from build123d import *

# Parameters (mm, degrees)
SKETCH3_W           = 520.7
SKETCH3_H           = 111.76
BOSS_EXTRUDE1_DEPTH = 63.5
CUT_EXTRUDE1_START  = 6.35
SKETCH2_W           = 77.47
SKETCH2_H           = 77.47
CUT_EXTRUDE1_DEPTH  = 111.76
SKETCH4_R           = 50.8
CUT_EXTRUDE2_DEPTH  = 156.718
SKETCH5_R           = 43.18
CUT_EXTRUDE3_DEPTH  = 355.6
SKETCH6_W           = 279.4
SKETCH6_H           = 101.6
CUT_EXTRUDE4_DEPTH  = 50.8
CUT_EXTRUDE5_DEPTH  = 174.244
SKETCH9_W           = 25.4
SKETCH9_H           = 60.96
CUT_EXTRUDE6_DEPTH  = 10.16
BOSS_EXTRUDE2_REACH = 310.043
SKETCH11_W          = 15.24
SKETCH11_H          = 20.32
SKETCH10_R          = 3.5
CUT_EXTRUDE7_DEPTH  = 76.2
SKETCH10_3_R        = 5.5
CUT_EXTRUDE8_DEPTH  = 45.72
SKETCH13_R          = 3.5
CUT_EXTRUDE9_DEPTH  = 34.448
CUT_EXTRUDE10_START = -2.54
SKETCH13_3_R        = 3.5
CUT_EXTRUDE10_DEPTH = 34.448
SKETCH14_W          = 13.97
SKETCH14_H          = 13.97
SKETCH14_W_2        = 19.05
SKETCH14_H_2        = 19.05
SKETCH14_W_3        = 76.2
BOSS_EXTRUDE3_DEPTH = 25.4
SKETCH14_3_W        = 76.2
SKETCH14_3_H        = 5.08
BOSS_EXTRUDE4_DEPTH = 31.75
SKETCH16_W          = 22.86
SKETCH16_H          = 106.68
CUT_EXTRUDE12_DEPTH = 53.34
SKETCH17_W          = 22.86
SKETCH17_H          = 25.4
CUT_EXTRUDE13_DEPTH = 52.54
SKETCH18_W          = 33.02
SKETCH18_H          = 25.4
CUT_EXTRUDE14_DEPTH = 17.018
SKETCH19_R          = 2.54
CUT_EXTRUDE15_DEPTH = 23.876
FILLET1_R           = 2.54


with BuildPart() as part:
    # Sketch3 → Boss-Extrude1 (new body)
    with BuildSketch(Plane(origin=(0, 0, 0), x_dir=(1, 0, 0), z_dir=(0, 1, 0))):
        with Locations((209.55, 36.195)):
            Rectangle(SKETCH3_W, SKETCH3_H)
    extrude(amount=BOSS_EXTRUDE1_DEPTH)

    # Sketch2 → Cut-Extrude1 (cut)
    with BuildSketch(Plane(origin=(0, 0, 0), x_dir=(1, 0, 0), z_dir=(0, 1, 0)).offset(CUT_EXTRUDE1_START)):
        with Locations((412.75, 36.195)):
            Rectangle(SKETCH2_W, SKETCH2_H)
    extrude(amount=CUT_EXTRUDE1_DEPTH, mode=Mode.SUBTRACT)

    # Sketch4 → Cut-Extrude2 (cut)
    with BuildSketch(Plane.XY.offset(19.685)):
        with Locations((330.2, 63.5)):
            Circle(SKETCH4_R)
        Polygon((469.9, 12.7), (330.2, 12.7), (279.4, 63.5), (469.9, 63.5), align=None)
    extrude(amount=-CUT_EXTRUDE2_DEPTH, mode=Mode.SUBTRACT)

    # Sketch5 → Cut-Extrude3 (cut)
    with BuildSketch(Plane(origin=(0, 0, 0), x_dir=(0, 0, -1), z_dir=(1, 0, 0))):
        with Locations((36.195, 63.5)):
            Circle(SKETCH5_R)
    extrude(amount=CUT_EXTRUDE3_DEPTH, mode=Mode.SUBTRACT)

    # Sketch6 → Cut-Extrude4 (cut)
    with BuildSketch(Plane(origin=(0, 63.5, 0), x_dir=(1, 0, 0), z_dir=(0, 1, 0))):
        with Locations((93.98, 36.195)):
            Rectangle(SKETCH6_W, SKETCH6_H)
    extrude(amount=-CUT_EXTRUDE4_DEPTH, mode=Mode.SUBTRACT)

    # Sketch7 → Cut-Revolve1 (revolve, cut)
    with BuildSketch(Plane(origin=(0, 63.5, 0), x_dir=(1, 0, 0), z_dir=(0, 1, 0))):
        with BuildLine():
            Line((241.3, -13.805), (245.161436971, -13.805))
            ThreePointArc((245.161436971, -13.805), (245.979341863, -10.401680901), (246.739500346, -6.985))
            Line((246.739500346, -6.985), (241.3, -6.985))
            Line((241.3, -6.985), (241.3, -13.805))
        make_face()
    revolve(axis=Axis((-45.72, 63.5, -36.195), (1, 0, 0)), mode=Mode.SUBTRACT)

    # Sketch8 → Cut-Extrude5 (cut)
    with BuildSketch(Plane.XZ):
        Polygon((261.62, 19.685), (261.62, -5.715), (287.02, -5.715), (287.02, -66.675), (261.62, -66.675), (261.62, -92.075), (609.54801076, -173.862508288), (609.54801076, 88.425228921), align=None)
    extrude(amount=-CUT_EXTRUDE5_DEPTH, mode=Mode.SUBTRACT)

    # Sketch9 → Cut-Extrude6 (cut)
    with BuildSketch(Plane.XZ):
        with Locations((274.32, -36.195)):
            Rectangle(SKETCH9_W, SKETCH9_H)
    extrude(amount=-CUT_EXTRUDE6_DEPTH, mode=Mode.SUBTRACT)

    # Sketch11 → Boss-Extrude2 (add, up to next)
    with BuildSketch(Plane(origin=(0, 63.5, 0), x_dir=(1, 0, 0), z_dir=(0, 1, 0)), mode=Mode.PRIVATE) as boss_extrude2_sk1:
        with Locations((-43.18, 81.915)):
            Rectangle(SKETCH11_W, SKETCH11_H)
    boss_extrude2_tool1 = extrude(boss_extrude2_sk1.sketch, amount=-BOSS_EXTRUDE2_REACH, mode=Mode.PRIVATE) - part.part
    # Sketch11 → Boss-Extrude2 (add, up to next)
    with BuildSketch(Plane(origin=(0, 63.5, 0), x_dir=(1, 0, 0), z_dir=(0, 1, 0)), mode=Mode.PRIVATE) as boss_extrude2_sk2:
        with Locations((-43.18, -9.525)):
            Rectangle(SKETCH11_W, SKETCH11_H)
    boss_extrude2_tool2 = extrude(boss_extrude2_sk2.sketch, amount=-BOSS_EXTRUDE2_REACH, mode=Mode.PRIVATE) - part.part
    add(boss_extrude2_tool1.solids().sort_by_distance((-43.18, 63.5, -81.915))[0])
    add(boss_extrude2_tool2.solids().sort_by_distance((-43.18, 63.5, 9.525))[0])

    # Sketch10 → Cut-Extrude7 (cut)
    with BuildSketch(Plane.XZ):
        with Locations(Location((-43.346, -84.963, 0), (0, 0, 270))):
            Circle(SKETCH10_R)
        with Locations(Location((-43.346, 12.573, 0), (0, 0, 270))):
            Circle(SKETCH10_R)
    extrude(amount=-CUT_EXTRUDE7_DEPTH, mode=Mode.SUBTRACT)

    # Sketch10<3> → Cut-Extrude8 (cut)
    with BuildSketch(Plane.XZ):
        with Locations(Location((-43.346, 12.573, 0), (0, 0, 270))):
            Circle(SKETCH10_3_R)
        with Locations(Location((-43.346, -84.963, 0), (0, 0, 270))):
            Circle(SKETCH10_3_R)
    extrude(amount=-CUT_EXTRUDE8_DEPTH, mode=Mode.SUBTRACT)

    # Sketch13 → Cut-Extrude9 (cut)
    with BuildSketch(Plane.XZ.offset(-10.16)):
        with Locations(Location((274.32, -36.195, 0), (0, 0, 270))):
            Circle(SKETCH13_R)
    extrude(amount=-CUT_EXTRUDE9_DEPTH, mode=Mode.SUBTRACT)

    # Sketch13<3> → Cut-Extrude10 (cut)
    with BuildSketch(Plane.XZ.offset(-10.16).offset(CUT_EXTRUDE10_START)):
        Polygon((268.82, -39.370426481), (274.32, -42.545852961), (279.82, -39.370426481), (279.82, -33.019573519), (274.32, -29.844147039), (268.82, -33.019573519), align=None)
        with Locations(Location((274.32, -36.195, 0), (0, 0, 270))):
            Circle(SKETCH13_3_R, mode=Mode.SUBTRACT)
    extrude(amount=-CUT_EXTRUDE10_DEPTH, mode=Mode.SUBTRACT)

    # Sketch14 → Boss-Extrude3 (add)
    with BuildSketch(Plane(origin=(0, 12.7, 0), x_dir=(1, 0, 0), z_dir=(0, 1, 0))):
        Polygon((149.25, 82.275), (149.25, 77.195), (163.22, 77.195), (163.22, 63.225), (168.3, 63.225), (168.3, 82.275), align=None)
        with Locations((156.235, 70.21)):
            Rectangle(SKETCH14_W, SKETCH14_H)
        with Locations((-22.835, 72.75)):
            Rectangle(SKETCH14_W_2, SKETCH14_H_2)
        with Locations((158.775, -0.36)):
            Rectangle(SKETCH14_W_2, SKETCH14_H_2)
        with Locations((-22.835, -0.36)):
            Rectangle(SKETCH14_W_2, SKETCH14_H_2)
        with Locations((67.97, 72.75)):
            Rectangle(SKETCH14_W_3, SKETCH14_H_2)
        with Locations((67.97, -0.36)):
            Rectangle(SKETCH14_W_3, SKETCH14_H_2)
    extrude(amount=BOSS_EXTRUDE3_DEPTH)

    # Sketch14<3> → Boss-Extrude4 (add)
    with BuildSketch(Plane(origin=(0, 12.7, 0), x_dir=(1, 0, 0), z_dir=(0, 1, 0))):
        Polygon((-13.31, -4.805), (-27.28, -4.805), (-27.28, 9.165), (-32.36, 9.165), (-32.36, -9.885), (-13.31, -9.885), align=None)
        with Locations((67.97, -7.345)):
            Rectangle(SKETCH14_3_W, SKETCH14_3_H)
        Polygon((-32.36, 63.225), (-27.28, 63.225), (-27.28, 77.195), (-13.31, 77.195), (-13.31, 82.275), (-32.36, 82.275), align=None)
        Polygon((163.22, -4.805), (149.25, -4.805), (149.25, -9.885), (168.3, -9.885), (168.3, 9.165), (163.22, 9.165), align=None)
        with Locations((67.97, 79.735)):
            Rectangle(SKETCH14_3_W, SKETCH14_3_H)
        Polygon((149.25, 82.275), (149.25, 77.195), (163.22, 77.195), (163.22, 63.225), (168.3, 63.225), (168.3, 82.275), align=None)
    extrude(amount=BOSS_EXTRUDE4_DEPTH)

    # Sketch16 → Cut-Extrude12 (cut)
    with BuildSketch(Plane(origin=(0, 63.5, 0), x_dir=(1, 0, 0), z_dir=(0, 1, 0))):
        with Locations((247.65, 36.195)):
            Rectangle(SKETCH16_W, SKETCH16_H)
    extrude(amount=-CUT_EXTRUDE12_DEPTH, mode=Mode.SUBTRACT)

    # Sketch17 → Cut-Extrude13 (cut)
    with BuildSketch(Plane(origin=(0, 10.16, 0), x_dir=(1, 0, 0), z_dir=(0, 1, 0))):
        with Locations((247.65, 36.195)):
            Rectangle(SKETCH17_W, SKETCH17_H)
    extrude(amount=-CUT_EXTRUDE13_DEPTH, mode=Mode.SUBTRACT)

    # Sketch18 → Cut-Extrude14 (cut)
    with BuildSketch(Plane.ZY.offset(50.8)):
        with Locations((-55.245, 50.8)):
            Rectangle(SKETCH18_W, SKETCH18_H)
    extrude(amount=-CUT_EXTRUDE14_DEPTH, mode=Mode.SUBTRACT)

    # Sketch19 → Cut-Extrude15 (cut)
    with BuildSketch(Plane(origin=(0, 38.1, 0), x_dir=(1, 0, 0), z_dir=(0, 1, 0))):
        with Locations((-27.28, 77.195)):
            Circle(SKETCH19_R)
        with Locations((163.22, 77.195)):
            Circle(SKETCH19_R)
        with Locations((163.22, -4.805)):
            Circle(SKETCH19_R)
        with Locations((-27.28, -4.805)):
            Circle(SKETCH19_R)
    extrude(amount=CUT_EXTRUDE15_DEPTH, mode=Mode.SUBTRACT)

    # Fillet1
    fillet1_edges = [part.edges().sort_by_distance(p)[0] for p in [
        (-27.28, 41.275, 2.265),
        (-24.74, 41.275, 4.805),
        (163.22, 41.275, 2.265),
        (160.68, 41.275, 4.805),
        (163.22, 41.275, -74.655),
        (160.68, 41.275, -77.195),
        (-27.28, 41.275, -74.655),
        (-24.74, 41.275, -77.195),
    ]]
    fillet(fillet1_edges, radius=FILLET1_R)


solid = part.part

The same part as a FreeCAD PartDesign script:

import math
import FreeCAD as App
import Part
import Sketcher
from FreeCAD import Vector
Q = App.Units.Quantity


def edges_at(feature, points):
    """Names of the edges that pass closest to the given points."""
    edges = feature.Shape.Edges
    near = lambda p: min(range(len(edges)), key=lambda i: edges[i].distToShape(Part.Vertex(*p))[0])
    return sorted({f"Edge{near(p) + 1}" for p in points})


def add_polygon(sketch, points):
    """Adds a closed chain of lines whose ends are joined by coincident constraints."""
    first, n = sketch.GeometryCount, len(points)
    for a, b in zip(points, points[1:] + points[:1]):
        sketch.addGeometry(Part.LineSegment(App.Vector(*a, 0), App.Vector(*b, 0)), False)
    for i in range(n):
        sketch.addConstraint(Sketcher.Constraint("Coincident", first + i, 2, first + (i + 1) % n, 1))

doc = App.newDocument("Part")
body = doc.addObject("PartDesign::Body", "Body")

sketch1 = doc.addObject("Sketcher::SketchObject", "Sketch")
body.addObject(sketch1)
sketch1.AttachmentSupport = (doc.XZ_Plane, [""])
sketch1.MapMode = "FlatFace"
add_polygon(sketch1, [(-51, -92), (-51, 20), (470, 20), (470, -92)])
sketch1.addConstraint(Sketcher.Constraint("Vertical", 0))
sketch1.addConstraint(Sketcher.Constraint("Horizontal", 1))
sketch1.addConstraint(Sketcher.Constraint("Vertical", 2))
sketch1.addConstraint(Sketcher.Constraint("Horizontal", 3))
sketch1.addConstraint(Sketcher.Constraint("DistanceX", 1, 1, 1, 2, Q("20.5 in")))
sketch1.addConstraint(Sketcher.Constraint("DistanceY", 0, 1, 0, 2, Q("4.4 in")))
sketch1.addConstraint(Sketcher.Constraint("DistanceX", 0, 2, -1, 1, Q("2 in")))
sketch1.addConstraint(Sketcher.Constraint("DistanceY", -1, 1, 0, 2, Q("0.775 in")))
pad1 = doc.addObject("PartDesign::Pad", "Pad")
body.addObject(pad1)
pad1.Profile = sketch1
pad1.Length = Q("2.5 in")
pad1.Reversed = True

sketch2 = doc.addObject("Sketcher::SketchObject", "Sketch001")
body.addObject(sketch2)
sketch2.AttachmentSupport = (doc.XZ_Plane, [""])
sketch2.MapMode = "FlatFace"
sketch2.AttachmentOffset = App.Placement(Vector(0, 0, -0.25 * 25.4), App.Rotation())
add_polygon(sketch2, [(374, -75), (374, 3), (451, 3), (451, -75)])
sketch2.addConstraint(Sketcher.Constraint("Vertical", 0))
sketch2.addConstraint(Sketcher.Constraint("Horizontal", 1))
sketch2.addConstraint(Sketcher.Constraint("Vertical", 2))
sketch2.addConstraint(Sketcher.Constraint("Horizontal", 3))
sketch2.addConstraint(Sketcher.Constraint("Equal", 3, 0))
sketch2.addConstraint(Sketcher.Constraint("DistanceX", 1, 1, 1, 2, Q("3.05 in")))
sketch2.addConstraint(Sketcher.Constraint("DistanceY", -1, 1, 0, 2, Q("0.1 in")))
sketch2.addConstraint(Sketcher.Constraint("DistanceX", -1, 1, 0, 2, Q("14.725 in")))
pocket1 = doc.addObject("PartDesign::Pocket", "Pocket")
body.addObject(pocket1)
pocket1.Profile = sketch2
pocket1.Length = Q("4.4 in")

sketch3 = doc.addObject("Sketcher::SketchObject", "Sketch002")
body.addObject(sketch3)
sketch3.AttachmentSupport = (doc.XY_Plane, [""])
sketch3.MapMode = "FlatFace"
sketch3.AttachmentOffset = App.Placement(Vector(0, 0, 0.775 * 25.4), App.Rotation())
sketch3.addGeometry(Part.ArcOfCircle(Part.Circle(Vector(330, 64, 0), Vector(0, 0, 1), 51), math.radians(0), math.radians(270)), False)
sketch3.addGeometry(Part.LineSegment(Vector(330, 13, 0), Vector(470, 13, 0)), False)
sketch3.addGeometry(Part.LineSegment(Vector(470, 13, 0), Vector(470, 64, 0)), False)
sketch3.addGeometry(Part.LineSegment(Vector(470, 64, 0), Vector(381, 64, 0)), False)
sketch3.addConstraint(Sketcher.Constraint("Tangent", 0, 2, 1, 1))
sketch3.addConstraint(Sketcher.Constraint("Coincident", 1, 2, 2, 1))
sketch3.addConstraint(Sketcher.Constraint("Coincident", 2, 2, 3, 1))
sketch3.addConstraint(Sketcher.Constraint("Coincident", 3, 2, 0, 1))
sketch3.addConstraint(Sketcher.Constraint("Horizontal", 1))
sketch3.addConstraint(Sketcher.Constraint("Vertical", 2))
sketch3.addConstraint(Sketcher.Constraint("Horizontal", 3))
sketch3.addConstraint(Sketcher.Constraint("Horizontal", 0, 3, 2, 2))
sketch3.addConstraint(Sketcher.Constraint("Radius", 0, Q("2 in")))
sketch3.addConstraint(Sketcher.Constraint("DistanceX", 1, 1, 1, 2, Q("5.5 in")))
sketch3.addConstraint(Sketcher.Constraint("DistanceX", -1, 1, 0, 3, Q("13 in")))
sketch3.addConstraint(Sketcher.Constraint("DistanceY", -1, 1, 0, 3, Q("2.5 in")))
pocket2 = doc.addObject("PartDesign::Pocket", "Pocket001")
body.addObject(pocket2)
pocket2.Profile = sketch3
pocket2.Length = Q("6.17 in")

sketch4 = doc.addObject("Sketcher::SketchObject", "Sketch003")
body.addObject(sketch4)
sketch4.AttachmentSupport = (doc.YZ_Plane, [""])
sketch4.MapMode = "FlatFace"
sketch4.addGeometry(Part.Circle(Vector(64, -36, 0), Vector(0, 0, 1), 43), False)
sketch4.addConstraint(Sketcher.Constraint("Diameter", 0, Q("3.4 in")))
sketch4.addConstraint(Sketcher.Constraint("DistanceX", -1, 1, 0, 3, Q("2.5 in")))
sketch4.addConstraint(Sketcher.Constraint("DistanceY", 0, 3, -1, 1, Q("1.425 in")))
pocket3 = doc.addObject("PartDesign::Pocket", "Pocket002")
body.addObject(pocket3)
pocket3.Profile = sketch4
pocket3.Length = Q("14 in")
pocket3.Reversed = True

sketch5 = doc.addObject("Sketcher::SketchObject", "Sketch004")
body.addObject(sketch5)
sketch5.AttachmentSupport = (doc.XZ_Plane, [""])
sketch5.MapMode = "FlatFace"
sketch5.AttachmentOffset = App.Placement(Vector(0, 0, -2.5 * 25.4), App.Rotation())
add_polygon(sketch5, [(-46, -87), (-46, 15), (234, 15), (234, -87)])
sketch5.addConstraint(Sketcher.Constraint("Vertical", 0))
sketch5.addConstraint(Sketcher.Constraint("Horizontal", 1))
sketch5.addConstraint(Sketcher.Constraint("Vertical", 2))
sketch5.addConstraint(Sketcher.Constraint("Horizontal", 3))
sketch5.addConstraint(Sketcher.Constraint("DistanceX", 1, 1, 1, 2, Q("11 in")))
sketch5.addConstraint(Sketcher.Constraint("DistanceY", 0, 1, 0, 2, Q("4 in")))
sketch5.addConstraint(Sketcher.Constraint("DistanceX", 0, 2, -1, 1, Q("1.8 in")))
sketch5.addConstraint(Sketcher.Constraint("DistanceY", -1, 1, 0, 2, Q("0.575 in")))
pocket4 = doc.addObject("PartDesign::Pocket", "Pocket003")
body.addObject(pocket4)
pocket4.Profile = sketch5
pocket4.Length = Q("2 in")
pocket4.Reversed = True

sketch6 = doc.addObject("Sketcher::SketchObject", "Sketch005")
body.addObject(sketch6)
sketch6.AttachmentSupport = (doc.XZ_Plane, [""])
sketch6.MapMode = "FlatFace"
sketch6.AttachmentOffset = App.Placement(Vector(0, 0, -2.5 * 25.4), App.Rotation())
sketch6.addGeometry(Part.LineSegment(Vector(241.3, 13.8, 0), Vector(245.2, 13.8, 0)), False)
sketch6.addGeometry(Part.ArcOfCircle(Part.Circle(Vector(44.6, -36.2, 0), Vector(0, 0, 1), 206.7), math.radians(12.06), math.radians(14)), False)
sketch6.addGeometry(Part.LineSegment(Vector(246.7, 7, 0), Vector(241.3, 7, 0)), False)
sketch6.addGeometry(Part.LineSegment(Vector(241.3, 7, 0), Vector(241.3, 13.8, 0)), False)
sketch6.addGeometry(Part.LineSegment(Vector(44.6, -36.2, 0), Vector(246.7, -36.2, 0)), True)
sketch6.addConstraint(Sketcher.Constraint("Coincident", 0, 2, 1, 2))
sketch6.addConstraint(Sketcher.Constraint("Coincident", 1, 1, 2, 1))
sketch6.addConstraint(Sketcher.Constraint("Coincident", 2, 2, 3, 1))
sketch6.addConstraint(Sketcher.Constraint("Coincident", 3, 2, 0, 1))
sketch6.addConstraint(Sketcher.Constraint("Horizontal", 0))
sketch6.addConstraint(Sketcher.Constraint("Horizontal", 2))
sketch6.addConstraint(Sketcher.Constraint("Vertical", 3))
sketch6.addConstraint(Sketcher.Constraint("Horizontal", 4))
sketch6.addConstraint(Sketcher.Constraint("Coincident", 4, 1, 1, 3))
sketch6.addConstraint(Sketcher.Constraint("Vertical", 1, 1, 4, 2))
sketch6.addConstraint(Sketcher.Constraint("DistanceX", -1, 1, 2, 2, Q("9.5 in")))
sketch6.addConstraint(Sketcher.Constraint("DistanceY", 1, 3, 1, 1, Q("1.7 in")))
sketch6.addConstraint(Sketcher.Constraint("DistanceY", 1, 3, -1, 1, Q("1.425 in")))
sketch6.addConstraint(Sketcher.Constraint("DistanceX", 2, 2, 2, 1, Q("5.4395 mm")))
sketch6.addConstraint(Sketcher.Constraint("DistanceY", 3, 1, 3, 2, Q("6.82 mm")))
sketch6.addConstraint(Sketcher.Constraint("Radius", 1, Q("206.699997 mm")))
groove = doc.addObject("PartDesign::Groove", "Groove")
body.addObject(groove)
groove.Profile = sketch6
groove.ReferenceAxis = (sketch6, ["Axis0"])
groove.Angle = 360

sketch7 = doc.addObject("Sketcher::SketchObject", "Sketch006")
body.addObject(sketch7)
sketch7.AttachmentSupport = (doc.XZ_Plane, [""])
sketch7.MapMode = "FlatFace"
add_polygon(sketch7, [(262, 20), (262, -6), (287, -6), (287, -67), (262, -67), (262, -92), (610, -174), (610, 88)])
sketch7.addConstraint(Sketcher.Constraint("Vertical", 0))
sketch7.addConstraint(Sketcher.Constraint("Horizontal", 1))
sketch7.addConstraint(Sketcher.Constraint("Vertical", 2))
sketch7.addConstraint(Sketcher.Constraint("Horizontal", 3))
sketch7.addConstraint(Sketcher.Constraint("Vertical", 4))
sketch7.addConstraint(Sketcher.Constraint("Vertical", 6))
sketch7.addConstraint(Sketcher.Constraint("Vertical", 0, 2, 3, 2))
sketch7.addConstraint(Sketcher.Constraint("Equal", 3, 0))
sketch7.addConstraint(Sketcher.Constraint("Equal", 0, 4))
sketch7.addConstraint(Sketcher.Constraint("DistanceX", 1, 1, 1, 2, Q("1 in")))
sketch7.addConstraint(Sketcher.Constraint("DistanceY", 2, 2, 2, 1, Q("2.4 in")))
sketch7.addConstraint(Sketcher.Constraint("DistanceX", -1, 1, 0, 2, Q("10.3 in")))
sketch7.addConstraint(Sketcher.Constraint("DistanceY", 0, 2, -1, 1, Q("0.225 in")))
sketch7.addConstraint(Sketcher.Constraint("Distance", 7, Q("354.653521 mm")))
sketch7.addConstraint(Sketcher.Constraint("DistanceY", 6, 1, 6, 2, Q("262.287737 mm")))
sketch7.addConstraint(Sketcher.Constraint("DistanceX", -1, 1, 5, 2, Q("609.548011 mm")))
pocket5 = doc.addObject("PartDesign::Pocket", "Pocket004")
body.addObject(pocket5)
pocket5.Profile = sketch7
pocket5.Length = Q("6.86 in")

sketch8 = doc.addObject("Sketcher::SketchObject", "Sketch007")
body.addObject(sketch8)
sketch8.AttachmentSupport = (doc.XZ_Plane, [""])
sketch8.MapMode = "FlatFace"
add_polygon(sketch8, [(262, -6), (262, -67), (287, -67), (287, -6)])
sketch8.addConstraint(Sketcher.Constraint("Vertical", 0))
sketch8.addConstraint(Sketcher.Constraint("Horizontal", 1))
sketch8.addConstraint(Sketcher.Constraint("Vertical", 2))
sketch8.addConstraint(Sketcher.Constraint("Horizontal", 3))
sketch8.addConstraint(Sketcher.Constraint("DistanceX", 1, 1, 1, 2, Q("1 in")))
sketch8.addConstraint(Sketcher.Constraint("DistanceY", 0, 2, 0, 1, Q("2.4 in")))
sketch8.addConstraint(Sketcher.Constraint("DistanceX", -1, 1, 0, 2, Q("10.3 in")))
sketch8.addConstraint(Sketcher.Constraint("DistanceY", 0, 2, -1, 1, Q("2.625 in")))
pocket6 = doc.addObject("PartDesign::Pocket", "Pocket005")
body.addObject(pocket6)
pocket6.Profile = sketch8
pocket6.Length = Q("0.4 in")

sketch9 = doc.addObject("Sketcher::SketchObject", "Sketch008")
body.addObject(sketch9)
sketch9.AttachmentSupport = (doc.XZ_Plane, [""])
sketch9.MapMode = "FlatFace"
sketch9.AttachmentOffset = App.Placement(Vector(0, 0, -2.5 * 25.4), App.Rotation())
add_polygon(sketch9, [(-51, -92), (-51, -72), (-36, -72), (-36, -92)])
sketch9.addConstraint(Sketcher.Constraint("Vertical", 0))
sketch9.addConstraint(Sketcher.Constraint("Horizontal", 1))
sketch9.addConstraint(Sketcher.Constraint("Vertical", 2))
sketch9.addConstraint(Sketcher.Constraint("Horizontal", 3))
sketch9.addConstraint(Sketcher.Constraint("DistanceX", 1, 1, 1, 2, Q("0.6 in")))
sketch9.addConstraint(Sketcher.Constraint("DistanceY", 0, 1, 0, 2, Q("0.8 in")))
sketch9.addConstraint(Sketcher.Constraint("DistanceX", 0, 2, -1, 1, Q("2 in")))
sketch9.addConstraint(Sketcher.Constraint("DistanceY", 0, 2, -1, 1, Q("2.825 in")))
pad2 = doc.addObject("PartDesign::Pad", "Pad001")
body.addObject(pad2)
pad2.Profile = sketch9
pad2.Type = "UpToFirst"

sketch10 = doc.addObject("Sketcher::SketchObject", "Sketch009")
body.addObject(sketch10)
sketch10.AttachmentSupport = (doc.XZ_Plane, [""])
sketch10.MapMode = "FlatFace"
sketch10.AttachmentOffset = App.Placement(Vector(0, 0, -2.5 * 25.4), App.Rotation())
add_polygon(sketch10, [(-51, -1), (-51, 20), (-36, 20), (-36, -1)])
sketch10.addConstraint(Sketcher.Constraint("Vertical", 0))
sketch10.addConstraint(Sketcher.Constraint("Horizontal", 1))
sketch10.addConstraint(Sketcher.Constraint("Vertical", 2))
sketch10.addConstraint(Sketcher.Constraint("Horizontal", 3))
sketch10.addConstraint(Sketcher.Constraint("DistanceX", 1, 1, 1, 2, Q("0.6 in")))
sketch10.addConstraint(Sketcher.Constraint("DistanceY", 0, 1, 0, 2, Q("0.8 in")))
sketch10.addConstraint(Sketcher.Constraint("DistanceX", 0, 2, -1, 1, Q("2 in")))
sketch10.addConstraint(Sketcher.Constraint("DistanceY", -1, 1, 0, 2, Q("0.775 in")))
pad3 = doc.addObject("PartDesign::Pad", "Pad002")
body.addObject(pad3)
pad3.Profile = sketch10
pad3.Type = "UpToFirst"

sketch11 = doc.addObject("Sketcher::SketchObject", "Sketch010")
body.addObject(sketch11)
sketch11.AttachmentSupport = (doc.XZ_Plane, [""])
sketch11.MapMode = "FlatFace"
sketch11.addGeometry(Part.Circle(Vector(-43.3, -85, 0), Vector(0, 0, 1), 3.5), False)
sketch11.addGeometry(Part.Circle(Vector(-43.3, 12.6, 0), Vector(0, 0, 1), 3.5), False)
sketch11.addConstraint(Sketcher.Constraint("Equal", 0, 1))
sketch11.addConstraint(Sketcher.Constraint("Vertical", 0, 3, 1, 3))
sketch11.addConstraint(Sketcher.Constraint("Diameter", 0, Q("7 mm")))
sketch11.addConstraint(Sketcher.Constraint("DistanceY", 0, 3, 1, 3, Q("3.84 in")))
sketch11.addConstraint(Sketcher.Constraint("DistanceY", 0, 3, -1, 1, Q("3.345 in")))
sketch11.addConstraint(Sketcher.Constraint("DistanceX", 0, 3, -1, 1, Q("43.346 mm")))
pocket7 = doc.addObject("PartDesign::Pocket", "Pocket006")
body.addObject(pocket7)
pocket7.Profile = sketch11
pocket7.Length = Q("3 in")

sketch12 = doc.addObject("Sketcher::SketchObject", "Sketch011")
body.addObject(sketch12)
sketch12.AttachmentSupport = (doc.XZ_Plane, [""])
sketch12.MapMode = "FlatFace"
sketch12.addGeometry(Part.Circle(Vector(-43, 13, 0), Vector(0, 0, 1), 6), False)
sketch12.addGeometry(Part.Circle(Vector(-43, -85, 0), Vector(0, 0, 1), 6), False)
sketch12.addConstraint(Sketcher.Constraint("Equal", 0, 1))
sketch12.addConstraint(Sketcher.Constraint("Vertical", 0, 3, 1, 3))
sketch12.addConstraint(Sketcher.Constraint("Diameter", 0, Q("11 mm")))
sketch12.addConstraint(Sketcher.Constraint("DistanceY", 1, 3, 0, 3, Q("3.84 in")))
sketch12.addConstraint(Sketcher.Constraint("DistanceY", -1, 1, 0, 3, Q("0.495 in")))
sketch12.addConstraint(Sketcher.Constraint("DistanceX", 0, 3, -1, 1, Q("43.346 mm")))
pocket8 = doc.addObject("PartDesign::Pocket", "Pocket007")
body.addObject(pocket8)
pocket8.Profile = sketch12
pocket8.Length = Q("1.8 in")

sketch13 = doc.addObject("Sketcher::SketchObject", "Sketch012")
body.addObject(sketch13)
sketch13.AttachmentSupport = (doc.XZ_Plane, [""])
sketch13.MapMode = "FlatFace"
sketch13.AttachmentOffset = App.Placement(Vector(0, 0, -0.4 * 25.4), App.Rotation())
sketch13.addGeometry(Part.Circle(Vector(274.3, -36.2, 0), Vector(0, 0, 1), 3.5), False)
sketch13.addConstraint(Sketcher.Constraint("DistanceX", -1, 1, 0, 3, Q("10.8 in")))
sketch13.addConstraint(Sketcher.Constraint("Diameter", 0, Q("7 mm")))
sketch13.addConstraint(Sketcher.Constraint("DistanceY", 0, 3, -1, 1, Q("1.425 in")))
pocket9 = doc.addObject("PartDesign::Pocket", "Pocket008")
body.addObject(pocket9)
pocket9.Profile = sketch13
pocket9.Length = 34.448

sketch14 = doc.addObject("Sketcher::SketchObject", "Sketch013")
body.addObject(sketch14)
sketch14.AttachmentSupport = (doc.XZ_Plane, [""])
sketch14.MapMode = "FlatFace"
sketch14.AttachmentOffset = App.Placement(Vector(0, 0, -0.5 * 25.4), App.Rotation())
add_polygon(sketch14, [(268.8, -39.4), (274.3, -42.5), (279.8, -39.4), (279.8, -33), (274.3, -29.8), (268.8, -33)])
sketch14.addGeometry(Part.Circle(Vector(274.3, -36.2, 0), Vector(0, 0, 1), 3.5), False)
sketch14.addConstraint(Sketcher.Constraint("Vertical", 2))
sketch14.addConstraint(Sketcher.Constraint("Vertical", 5))
sketch14.addConstraint(Sketcher.Constraint("Parallel", 0, 3))
sketch14.addConstraint(Sketcher.Constraint("Parallel", 1, 4))
sketch14.addConstraint(Sketcher.Constraint("Horizontal", 2, 2, 4, 2))
sketch14.addConstraint(Sketcher.Constraint("Horizontal", 1, 2, 5, 2))
sketch14.addConstraint(Sketcher.Constraint("Vertical", 6, 3, 0, 2))
sketch14.addConstraint(Sketcher.Constraint("Vertical", 0, 2, 3, 2))
sketch14.addConstraint(Sketcher.Constraint("Angle", 0, Q("-30 deg")))
sketch14.addConstraint(Sketcher.Constraint("DistanceX", -1, 1, 6, 3, Q("10.8 in")))
sketch14.addConstraint(Sketcher.Constraint("Diameter", 6, Q("7 mm")))
sketch14.addConstraint(Sketcher.Constraint("DistanceY", 6, 3, -1, 1, Q("1.425 in")))
sketch14.addConstraint(Sketcher.Constraint("DistanceX", -1, 1, 1, 2, Q("279.82 mm")))
sketch14.addConstraint(Sketcher.Constraint("DistanceY", 2, 1, 2, 2, Q("6.350853 mm")))
sketch14.addConstraint(Sketcher.Constraint("DistanceY", 0, 2, -1, 1, Q("42.545853 mm")))
pocket10 = doc.addObject("PartDesign::Pocket", "Pocket009")
body.addObject(pocket10)
pocket10.Profile = sketch14
pocket10.Length = 34.448

sketch15 = doc.addObject("Sketcher::SketchObject", "Sketch014")
body.addObject(sketch15)
sketch15.AttachmentSupport = (doc.XZ_Plane, [""])
sketch15.MapMode = "FlatFace"
sketch15.AttachmentOffset = App.Placement(Vector(0, 0, -0.5 * 25.4), App.Rotation())
add_polygon(sketch15, [(149, -82), (149, -63), (168, -63), (168, -82)])
add_polygon(sketch15, [(-32, -82), (-32, -63), (-13, -63), (-13, -82)])
add_polygon(sketch15, [(149, -9), (149, 10), (168, 10), (168, -9)])
add_polygon(sketch15, [(-32, -9), (-32, 10), (-13, 10), (-13, -9)])
add_polygon(sketch15, [(30, -82), (30, -63), (106, -63), (106, -82)])
add_polygon(sketch15, [(30, -9), (30, 10), (106, 10), (106, -9)])
sketch15.addConstraint(Sketcher.Constraint("Vertical", 0))
sketch15.addConstraint(Sketcher.Constraint("Horizontal", 1))
sketch15.addConstraint(Sketcher.Constraint("Vertical", 2))
sketch15.addConstraint(Sketcher.Constraint("Horizontal", 3))
sketch15.addConstraint(Sketcher.Constraint("Vertical", 4))
sketch15.addConstraint(Sketcher.Constraint("Horizontal", 5))
sketch15.addConstraint(Sketcher.Constraint("Vertical", 6))
sketch15.addConstraint(Sketcher.Constraint("Horizontal", 7))
sketch15.addConstraint(Sketcher.Constraint("Vertical", 8))
sketch15.addConstraint(Sketcher.Constraint("Horizontal", 9))
sketch15.addConstraint(Sketcher.Constraint("Vertical", 10))
sketch15.addConstraint(Sketcher.Constraint("Horizontal", 11))
sketch15.addConstraint(Sketcher.Constraint("Vertical", 12))
sketch15.addConstraint(Sketcher.Constraint("Horizontal", 13))
sketch15.addConstraint(Sketcher.Constraint("Vertical", 14))
sketch15.addConstraint(Sketcher.Constraint("Horizontal", 15))
sketch15.addConstraint(Sketcher.Constraint("Vertical", 16))
sketch15.addConstraint(Sketcher.Constraint("Horizontal", 17))
sketch15.addConstraint(Sketcher.Constraint("Vertical", 18))
sketch15.addConstraint(Sketcher.Constraint("Horizontal", 19))
sketch15.addConstraint(Sketcher.Constraint("Vertical", 20))
sketch15.addConstraint(Sketcher.Constraint("Horizontal", 21))
sketch15.addConstraint(Sketcher.Constraint("Vertical", 22))
sketch15.addConstraint(Sketcher.Constraint("Horizontal", 23))
sketch15.addConstraint(Sketcher.Constraint("Horizontal", 1, 2, 4, 2))
sketch15.addConstraint(Sketcher.Constraint("Horizontal", 3, 2, 6, 2))
sketch15.addConstraint(Sketcher.Constraint("Horizontal", 9, 2, 12, 2))
sketch15.addConstraint(Sketcher.Constraint("Horizontal", 11, 2, 14, 2))
sketch15.addConstraint(Sketcher.Constraint("Horizontal", 5, 2, 16, 2))
sketch15.addConstraint(Sketcher.Constraint("Horizontal", 7, 2, 18, 2))
sketch15.addConstraint(Sketcher.Constraint("Horizontal", 13, 2, 20, 2))
sketch15.addConstraint(Sketcher.Constraint("Horizontal", 15, 2, 22, 2))
sketch15.addConstraint(Sketcher.Constraint("Vertical", 3, 2, 8, 2))
sketch15.addConstraint(Sketcher.Constraint("Vertical", 2, 2, 9, 2))
sketch15.addConstraint(Sketcher.Constraint("Vertical", 7, 2, 12, 2))
sketch15.addConstraint(Sketcher.Constraint("Vertical", 6, 2, 13, 2))
sketch15.addConstraint(Sketcher.Constraint("Vertical", 19, 2, 20, 2))
sketch15.addConstraint(Sketcher.Constraint("Vertical", 18, 2, 21, 2))
sketch15.addConstraint(Sketcher.Constraint("Equal", 3, 5))
sketch15.addConstraint(Sketcher.Constraint("Equal", 15, 0))
sketch15.addConstraint(Sketcher.Constraint("Equal", 6, 8))
sketch15.addConstraint(Sketcher.Constraint("DistanceX", 17, 1, 17, 2, Q("3 in")))
sketch15.addConstraint(Sketcher.Constraint("DistanceX", 1, 1, 1, 2, Q("0.75 in")))
sketch15.addConstraint(Sketcher.Constraint("DistanceX", 4, 2, 1, 2, Q("7.9 in")))
sketch15.addConstraint(Sketcher.Constraint("DistanceX", 5, 2, 16, 2, Q("1.7 in")))
sketch15.addConstraint(Sketcher.Constraint("DistanceX", -1, 1, 0, 2, Q("149.25 mm")))
sketch15.addConstraint(Sketcher.Constraint("DistanceY", 0, 2, -1, 1, Q("63.225 mm")))
sketch15.addConstraint(Sketcher.Constraint("DistanceY", -1, 1, 8, 2, Q("9.885 mm")))
pad4 = doc.addObject("PartDesign::Pad", "Pad003")
body.addObject(pad4)
pad4.Profile = sketch15
pad4.Length = Q("1 in")
pad4.Reversed = True

sketch16 = doc.addObject("Sketcher::SketchObject", "Sketch015")
body.addObject(sketch16)
sketch16.AttachmentSupport = (doc.XZ_Plane, [""])
sketch16.MapMode = "FlatFace"
sketch16.AttachmentOffset = App.Placement(Vector(0, 0, -0.5 * 25.4), App.Rotation())
add_polygon(sketch16, [(-13, 5), (-27, 5), (-27, -9), (-32, -9), (-32, 10), (-13, 10)])
add_polygon(sketch16, [(30, 5), (30, 10), (106, 10), (106, 5)])
add_polygon(sketch16, [(-32, -63), (-27, -63), (-27, -77), (-13, -77), (-13, -82), (-32, -82)])
add_polygon(sketch16, [(163, 5), (149, 5), (149, 10), (168, 10), (168, -9), (163, -9)])
add_polygon(sketch16, [(30, -82), (30, -77), (106, -77), (106, -82)])
add_polygon(sketch16, [(149, -82), (149, -77), (163, -77), (163, -63), (168, -63), (168, -82)])
sketch16.addConstraint(Sketcher.Constraint("Horizontal", 0))
sketch16.addConstraint(Sketcher.Constraint("Vertical", 1))
sketch16.addConstraint(Sketcher.Constraint("Horizontal", 2))
sketch16.addConstraint(Sketcher.Constraint("Vertical", 3))
sketch16.addConstraint(Sketcher.Constraint("Horizontal", 4))
sketch16.addConstraint(Sketcher.Constraint("Vertical", 5))
sketch16.addConstraint(Sketcher.Constraint("Vertical", 6))
sketch16.addConstraint(Sketcher.Constraint("Horizontal", 7))
sketch16.addConstraint(Sketcher.Constraint("Vertical", 8))
sketch16.addConstraint(Sketcher.Constraint("Horizontal", 9))
sketch16.addConstraint(Sketcher.Constraint("Horizontal", 10))
sketch16.addConstraint(Sketcher.Constraint("Vertical", 11))
sketch16.addConstraint(Sketcher.Constraint("Horizontal", 12))
sketch16.addConstraint(Sketcher.Constraint("Vertical", 13))
sketch16.addConstraint(Sketcher.Constraint("Horizontal", 14))
sketch16.addConstraint(Sketcher.Constraint("Vertical", 15))
sketch16.addConstraint(Sketcher.Constraint("Horizontal", 16))
sketch16.addConstraint(Sketcher.Constraint("Vertical", 17))
sketch16.addConstraint(Sketcher.Constraint("Horizontal", 18))
sketch16.addConstraint(Sketcher.Constraint("Vertical", 19))
sketch16.addConstraint(Sketcher.Constraint("Horizontal", 20))
sketch16.addConstraint(Sketcher.Constraint("Vertical", 21))
sketch16.addConstraint(Sketcher.Constraint("Vertical", 22))
sketch16.addConstraint(Sketcher.Constraint("Horizontal", 23))
sketch16.addConstraint(Sketcher.Constraint("Vertical", 24))
sketch16.addConstraint(Sketcher.Constraint("Horizontal", 25))
sketch16.addConstraint(Sketcher.Constraint("Vertical", 26))
sketch16.addConstraint(Sketcher.Constraint("Horizontal", 27))
sketch16.addConstraint(Sketcher.Constraint("Vertical", 28))
sketch16.addConstraint(Sketcher.Constraint("Horizontal", 29))
sketch16.addConstraint(Sketcher.Constraint("Vertical", 30))
sketch16.addConstraint(Sketcher.Constraint("Horizontal", 31))
sketch16.addConstraint(Sketcher.Constraint("Horizontal", 4, 2, 6, 2))
sketch16.addConstraint(Sketcher.Constraint("Horizontal", 5, 2, 8, 2))
sketch16.addConstraint(Sketcher.Constraint("Horizontal", 9, 2, 16, 2))
sketch16.addConstraint(Sketcher.Constraint("Horizontal", 7, 2, 17, 2))
sketch16.addConstraint(Sketcher.Constraint("Horizontal", 2, 2, 19, 2))
sketch16.addConstraint(Sketcher.Constraint("Horizontal", 12, 2, 22, 2))
sketch16.addConstraint(Sketcher.Constraint("Horizontal", 14, 2, 24, 2))
sketch16.addConstraint(Sketcher.Constraint("Horizontal", 23, 2, 26, 2))
sketch16.addConstraint(Sketcher.Constraint("Horizontal", 15, 2, 28, 2))
sketch16.addConstraint(Sketcher.Constraint("Horizontal", 25, 2, 30, 2))
sketch16.addConstraint(Sketcher.Constraint("Vertical", 1, 2, 10, 2))
sketch16.addConstraint(Sketcher.Constraint("Vertical", 5, 2, 12, 2))
sketch16.addConstraint(Sketcher.Constraint("Vertical", 3, 2, 14, 2))
sketch16.addConstraint(Sketcher.Constraint("Vertical", 9, 2, 22, 2))
sketch16.addConstraint(Sketcher.Constraint("Vertical", 8, 2, 23, 2))
sketch16.addConstraint(Sketcher.Constraint("Vertical", 17, 2, 26, 2))
sketch16.addConstraint(Sketcher.Constraint("Vertical", 21, 2, 27, 2))
sketch16.addConstraint(Sketcher.Constraint("Vertical", 19, 2, 29, 2))
sketch16.addConstraint(Sketcher.Constraint("Equal", 12, 16))
sketch16.addConstraint(Sketcher.Constraint("Equal", 14, 18))
sketch16.addConstraint(Sketcher.Constraint("Equal", 27, 1))
sketch16.addConstraint(Sketcher.Constraint("Equal", 31, 3))
sketch16.addConstraint(Sketcher.Constraint("Equal", 1, 11))
sketch16.addConstraint(Sketcher.Constraint("Equal", 8, 13))
sketch16.addConstraint(Sketcher.Constraint("DistanceX", 7, 1, 7, 2, Q("3 in")))
sketch16.addConstraint(Sketcher.Constraint("DistanceX", 2, 2, 2, 1, Q("0.2 in")))
sketch16.addConstraint(Sketcher.Constraint("DistanceX", 0, 2, 0, 1, Q("0.55 in")))
sketch16.addConstraint(Sketcher.Constraint("DistanceX", 4, 2, 6, 2, Q("1.7 in")))
sketch16.addConstraint(Sketcher.Constraint("DistanceX", 8, 2, 16, 2, Q("1.7 in")))
sketch16.addConstraint(Sketcher.Constraint("DistanceX", 0, 2, -1, 1, Q("27.28 mm")))
sketch16.addConstraint(Sketcher.Constraint("DistanceY", -1, 1, 0, 2, Q("4.805 mm")))
sketch16.addConstraint(Sketcher.Constraint("DistanceY", 10, 2, -1, 1, Q("63.225 mm")))
pad5 = doc.addObject("PartDesign::Pad", "Pad004")
body.addObject(pad5)
pad5.Profile = sketch16
pad5.Length = Q("1.25 in")
pad5.Reversed = True

sketch17 = doc.addObject("Sketcher::SketchObject", "Sketch016")
body.addObject(sketch17)
sketch17.AttachmentSupport = (doc.XZ_Plane, [""])
sketch17.MapMode = "FlatFace"
sketch17.AttachmentOffset = App.Placement(Vector(0, 0, -2.5 * 25.4), App.Rotation())
add_polygon(sketch17, [(236, -90), (236, 17), (259, 17), (259, -90)])
sketch17.addConstraint(Sketcher.Constraint("Vertical", 0))
sketch17.addConstraint(Sketcher.Constraint("Horizontal", 1))
sketch17.addConstraint(Sketcher.Constraint("Vertical", 2))
sketch17.addConstraint(Sketcher.Constraint("Horizontal", 3))
sketch17.addConstraint(Sketcher.Constraint("DistanceX", 1, 1, 1, 2, Q("0.9 in")))
sketch17.addConstraint(Sketcher.Constraint("DistanceY", 0, 1, 0, 2, Q("4.2 in")))
sketch17.addConstraint(Sketcher.Constraint("DistanceX", -1, 1, 0, 2, Q("9.3 in")))
sketch17.addConstraint(Sketcher.Constraint("DistanceY", -1, 1, 0, 2, Q("0.675 in")))
pocket11 = doc.addObject("PartDesign::Pocket", "Pocket010")
body.addObject(pocket11)
pocket11.Profile = sketch17
pocket11.Length = Q("2.1 in")
pocket11.Reversed = True

sketch18 = doc.addObject("Sketcher::SketchObject", "Sketch017")
body.addObject(sketch18)
sketch18.AttachmentSupport = (doc.XZ_Plane, [""])
sketch18.MapMode = "FlatFace"
sketch18.AttachmentOffset = App.Placement(Vector(0, 0, -0.4 * 25.4), App.Rotation())
add_polygon(sketch18, [(236, -49), (236, -23), (259, -23), (259, -49)])
sketch18.addConstraint(Sketcher.Constraint("Vertical", 0))
sketch18.addConstraint(Sketcher.Constraint("Horizontal", 1))
sketch18.addConstraint(Sketcher.Constraint("Vertical", 2))
sketch18.addConstraint(Sketcher.Constraint("Horizontal", 3))
sketch18.addConstraint(Sketcher.Constraint("DistanceY", 0, 1, 0, 2, Q("1 in")))
sketch18.addConstraint(Sketcher.Constraint("DistanceX", 1, 1, 1, 2, Q("0.9 in")))
sketch18.addConstraint(Sketcher.Constraint("DistanceX", -1, 1, 0, 2, Q("9.3 in")))
sketch18.addConstraint(Sketcher.Constraint("DistanceY", 0, 2, -1, 1, Q("0.925 in")))
pocket12 = doc.addObject("PartDesign::Pocket", "Pocket011")
body.addObject(pocket12)
pocket12.Profile = sketch18
pocket12.Length = 52.54
pocket12.Reversed = True

sketch19 = doc.addObject("Sketcher::SketchObject", "Sketch018")
body.addObject(sketch19)
sketch19.AttachmentSupport = (doc.YZ_Plane, [""])
sketch19.MapMode = "FlatFace"
sketch19.AttachmentOffset = App.Placement(Vector(0, 0, -2 * 25.4), App.Rotation())
add_polygon(sketch19, [(64, -72), (38, -72), (38, -39), (64, -39)])
sketch19.addConstraint(Sketcher.Constraint("Horizontal", 0))
sketch19.addConstraint(Sketcher.Constraint("Vertical", 1))
sketch19.addConstraint(Sketcher.Constraint("Horizontal", 2))
sketch19.addConstraint(Sketcher.Constraint("Vertical", 3))
sketch19.addConstraint(Sketcher.Constraint("DistanceX", 0, 2, 0, 1, Q("1 in")))
sketch19.addConstraint(Sketcher.Constraint("DistanceY", 1, 1, 1, 2, Q("1.3 in")))
sketch19.addConstraint(Sketcher.Constraint("DistanceX", -1, 1, 0, 2, Q("1.5 in")))
sketch19.addConstraint(Sketcher.Constraint("DistanceY", 0, 2, -1, 1, Q("2.825 in")))
pocket13 = doc.addObject("PartDesign::Pocket", "Pocket012")
body.addObject(pocket13)
pocket13.Profile = sketch19
pocket13.Length = Q("0.67 in")
pocket13.Reversed = True

sketch20 = doc.addObject("Sketcher::SketchObject", "Sketch019")
body.addObject(sketch20)
sketch20.AttachmentSupport = (doc.XZ_Plane, [""])
sketch20.MapMode = "FlatFace"
sketch20.AttachmentOffset = App.Placement(Vector(0, 0, -1.5 * 25.4), App.Rotation())
sketch20.addGeometry(Part.Circle(Vector(-27.3, -77.2, 0), Vector(0, 0, 1), 2.5), False)
sketch20.addGeometry(Part.Circle(Vector(163.2, -77.2, 0), Vector(0, 0, 1), 2.5), False)
sketch20.addGeometry(Part.Circle(Vector(163.2, 4.8, 0), Vector(0, 0, 1), 2.5), False)
sketch20.addGeometry(Part.Circle(Vector(-27.3, 4.8, 0), Vector(0, 0, 1), 2.5), False)
sketch20.addConstraint(Sketcher.Constraint("Equal", 0, 1))
sketch20.addConstraint(Sketcher.Constraint("Equal", 1, 2))
sketch20.addConstraint(Sketcher.Constraint("Equal", 2, 3))
sketch20.addConstraint(Sketcher.Constraint("Horizontal", 0, 3, 1, 3))
sketch20.addConstraint(Sketcher.Constraint("Horizontal", 2, 3, 3, 3))
sketch20.addConstraint(Sketcher.Constraint("Vertical", 1, 3, 2, 3))
sketch20.addConstraint(Sketcher.Constraint("Vertical", 0, 3, 3, 3))
sketch20.addConstraint(Sketcher.Constraint("Diameter", 0, Q("0.2 in")))
sketch20.addConstraint(Sketcher.Constraint("DistanceX", 0, 3, 1, 3, Q("7.5 in")))
sketch20.addConstraint(Sketcher.Constraint("DistanceX", 0, 3, -1, 1, Q("27.28 mm")))
sketch20.addConstraint(Sketcher.Constraint("DistanceY", 0, 3, -1, 1, Q("77.195 mm")))
sketch20.addConstraint(Sketcher.Constraint("DistanceY", -1, 1, 2, 3, Q("4.805 mm")))
pocket14 = doc.addObject("PartDesign::Pocket", "Pocket013")
body.addObject(pocket14)
pocket14.Profile = sketch20
pocket14.Length = Q("0.94 in")
doc.recompute()

fillet = doc.addObject("PartDesign::Fillet", "Fillet")
body.addObject(fillet)
fillet.Base = (pocket14, edges_at(pocket14, [
    (-27.28, 41.275, 2.265),
    (-24.74, 41.275, 4.805),
    (163.22, 41.275, 2.265),
    (160.68, 41.275, 4.805),
    (163.22, 41.275, -74.655),
    (160.68, 41.275, -77.195),
    (-27.28, 41.275, -74.655),
    (-24.74, 41.275, -77.195),
]))
fillet.Radius = Q("0.1 in")

doc.recompute()
